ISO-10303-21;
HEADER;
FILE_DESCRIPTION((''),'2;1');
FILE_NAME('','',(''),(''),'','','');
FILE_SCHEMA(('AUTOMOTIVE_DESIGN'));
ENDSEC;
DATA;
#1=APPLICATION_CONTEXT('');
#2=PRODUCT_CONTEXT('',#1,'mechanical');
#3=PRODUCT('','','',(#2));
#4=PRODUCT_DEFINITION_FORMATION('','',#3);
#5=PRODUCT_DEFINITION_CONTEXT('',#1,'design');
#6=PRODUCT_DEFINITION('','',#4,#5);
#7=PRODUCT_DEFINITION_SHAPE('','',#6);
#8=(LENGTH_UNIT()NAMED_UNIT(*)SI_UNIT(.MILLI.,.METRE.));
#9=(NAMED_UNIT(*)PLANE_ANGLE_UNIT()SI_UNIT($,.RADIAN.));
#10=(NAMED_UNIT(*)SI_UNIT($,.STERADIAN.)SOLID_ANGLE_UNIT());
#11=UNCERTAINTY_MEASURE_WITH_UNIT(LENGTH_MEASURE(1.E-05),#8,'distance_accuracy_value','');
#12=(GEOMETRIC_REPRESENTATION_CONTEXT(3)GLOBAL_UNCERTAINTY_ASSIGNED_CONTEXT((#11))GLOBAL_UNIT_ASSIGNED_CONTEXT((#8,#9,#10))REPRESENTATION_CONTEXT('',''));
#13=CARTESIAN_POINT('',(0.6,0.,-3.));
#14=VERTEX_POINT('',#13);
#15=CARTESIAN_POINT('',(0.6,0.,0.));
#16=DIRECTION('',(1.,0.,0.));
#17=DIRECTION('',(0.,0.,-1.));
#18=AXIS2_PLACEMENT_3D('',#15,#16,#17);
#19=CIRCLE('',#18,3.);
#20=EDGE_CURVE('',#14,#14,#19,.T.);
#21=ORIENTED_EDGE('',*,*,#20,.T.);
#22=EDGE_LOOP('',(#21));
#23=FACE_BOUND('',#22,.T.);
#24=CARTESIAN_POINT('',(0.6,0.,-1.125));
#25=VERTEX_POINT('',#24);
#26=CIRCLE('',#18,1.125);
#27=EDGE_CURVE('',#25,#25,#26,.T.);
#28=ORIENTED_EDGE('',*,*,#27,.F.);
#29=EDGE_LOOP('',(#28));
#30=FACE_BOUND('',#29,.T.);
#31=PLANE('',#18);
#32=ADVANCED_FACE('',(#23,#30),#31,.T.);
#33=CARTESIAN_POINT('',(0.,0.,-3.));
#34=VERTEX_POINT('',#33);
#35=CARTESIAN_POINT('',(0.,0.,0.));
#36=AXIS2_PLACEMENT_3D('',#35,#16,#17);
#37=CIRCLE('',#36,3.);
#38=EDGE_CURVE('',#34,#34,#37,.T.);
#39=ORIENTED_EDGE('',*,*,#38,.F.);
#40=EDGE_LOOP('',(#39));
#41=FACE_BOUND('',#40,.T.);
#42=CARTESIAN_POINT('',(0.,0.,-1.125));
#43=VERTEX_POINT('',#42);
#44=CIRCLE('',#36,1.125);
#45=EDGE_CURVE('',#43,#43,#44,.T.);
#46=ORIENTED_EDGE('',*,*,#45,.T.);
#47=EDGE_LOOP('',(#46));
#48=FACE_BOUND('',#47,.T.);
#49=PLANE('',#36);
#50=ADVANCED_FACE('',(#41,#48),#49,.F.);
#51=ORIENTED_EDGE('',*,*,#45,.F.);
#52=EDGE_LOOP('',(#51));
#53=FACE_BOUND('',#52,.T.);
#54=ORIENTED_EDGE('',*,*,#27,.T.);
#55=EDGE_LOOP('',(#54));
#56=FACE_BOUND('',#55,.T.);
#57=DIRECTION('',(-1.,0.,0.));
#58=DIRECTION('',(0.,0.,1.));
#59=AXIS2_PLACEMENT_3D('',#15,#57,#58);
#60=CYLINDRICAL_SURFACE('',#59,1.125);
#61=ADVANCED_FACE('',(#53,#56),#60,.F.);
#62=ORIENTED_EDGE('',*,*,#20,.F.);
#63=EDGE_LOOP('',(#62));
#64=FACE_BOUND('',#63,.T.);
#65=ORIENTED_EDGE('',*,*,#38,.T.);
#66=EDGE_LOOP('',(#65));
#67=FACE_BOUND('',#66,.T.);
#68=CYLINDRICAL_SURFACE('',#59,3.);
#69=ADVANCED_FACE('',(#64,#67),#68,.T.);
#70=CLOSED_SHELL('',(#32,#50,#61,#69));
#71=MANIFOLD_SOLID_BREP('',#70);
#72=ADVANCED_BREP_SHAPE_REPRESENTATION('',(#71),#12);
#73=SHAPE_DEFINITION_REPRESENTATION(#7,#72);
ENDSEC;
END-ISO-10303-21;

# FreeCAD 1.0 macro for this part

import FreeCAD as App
import Part
import Sketcher

V = App.Vector
Q = App.Units.Quantity

doc = App.newDocument("Part")
body = doc.addObject("PartDesign::Body", "Body")

sketch1 = body.newObject("Sketcher::SketchObject", "Sketch")
sketch1.AttachmentSupport = (doc.getObject("YZ_Plane"), [""])
sketch1.MapMode = "FlatFace"
sketch1.addGeometry([
    Part.Circle(V(0, 0, 0), V(0, 0, 1), 3),
    Part.Circle(V(0, 0, 0), V(0, 0, 1), 1.1),
], False)
sketch1.addConstraint([
    Sketcher.Constraint("Coincident", 0, 3, -1, 1),
    Sketcher.Constraint("Coincident", 1, 3, -1, 1),
    Sketcher.Constraint("Diameter", 0, Q("6 mm")),
    Sketcher.Constraint("Diameter", 1, Q("2.25 mm")),
])
pad1 = body.newObject("PartDesign::Pad", "Pad")
pad1.Profile = sketch1
pad1.Length = 0.6

doc.recompute()
